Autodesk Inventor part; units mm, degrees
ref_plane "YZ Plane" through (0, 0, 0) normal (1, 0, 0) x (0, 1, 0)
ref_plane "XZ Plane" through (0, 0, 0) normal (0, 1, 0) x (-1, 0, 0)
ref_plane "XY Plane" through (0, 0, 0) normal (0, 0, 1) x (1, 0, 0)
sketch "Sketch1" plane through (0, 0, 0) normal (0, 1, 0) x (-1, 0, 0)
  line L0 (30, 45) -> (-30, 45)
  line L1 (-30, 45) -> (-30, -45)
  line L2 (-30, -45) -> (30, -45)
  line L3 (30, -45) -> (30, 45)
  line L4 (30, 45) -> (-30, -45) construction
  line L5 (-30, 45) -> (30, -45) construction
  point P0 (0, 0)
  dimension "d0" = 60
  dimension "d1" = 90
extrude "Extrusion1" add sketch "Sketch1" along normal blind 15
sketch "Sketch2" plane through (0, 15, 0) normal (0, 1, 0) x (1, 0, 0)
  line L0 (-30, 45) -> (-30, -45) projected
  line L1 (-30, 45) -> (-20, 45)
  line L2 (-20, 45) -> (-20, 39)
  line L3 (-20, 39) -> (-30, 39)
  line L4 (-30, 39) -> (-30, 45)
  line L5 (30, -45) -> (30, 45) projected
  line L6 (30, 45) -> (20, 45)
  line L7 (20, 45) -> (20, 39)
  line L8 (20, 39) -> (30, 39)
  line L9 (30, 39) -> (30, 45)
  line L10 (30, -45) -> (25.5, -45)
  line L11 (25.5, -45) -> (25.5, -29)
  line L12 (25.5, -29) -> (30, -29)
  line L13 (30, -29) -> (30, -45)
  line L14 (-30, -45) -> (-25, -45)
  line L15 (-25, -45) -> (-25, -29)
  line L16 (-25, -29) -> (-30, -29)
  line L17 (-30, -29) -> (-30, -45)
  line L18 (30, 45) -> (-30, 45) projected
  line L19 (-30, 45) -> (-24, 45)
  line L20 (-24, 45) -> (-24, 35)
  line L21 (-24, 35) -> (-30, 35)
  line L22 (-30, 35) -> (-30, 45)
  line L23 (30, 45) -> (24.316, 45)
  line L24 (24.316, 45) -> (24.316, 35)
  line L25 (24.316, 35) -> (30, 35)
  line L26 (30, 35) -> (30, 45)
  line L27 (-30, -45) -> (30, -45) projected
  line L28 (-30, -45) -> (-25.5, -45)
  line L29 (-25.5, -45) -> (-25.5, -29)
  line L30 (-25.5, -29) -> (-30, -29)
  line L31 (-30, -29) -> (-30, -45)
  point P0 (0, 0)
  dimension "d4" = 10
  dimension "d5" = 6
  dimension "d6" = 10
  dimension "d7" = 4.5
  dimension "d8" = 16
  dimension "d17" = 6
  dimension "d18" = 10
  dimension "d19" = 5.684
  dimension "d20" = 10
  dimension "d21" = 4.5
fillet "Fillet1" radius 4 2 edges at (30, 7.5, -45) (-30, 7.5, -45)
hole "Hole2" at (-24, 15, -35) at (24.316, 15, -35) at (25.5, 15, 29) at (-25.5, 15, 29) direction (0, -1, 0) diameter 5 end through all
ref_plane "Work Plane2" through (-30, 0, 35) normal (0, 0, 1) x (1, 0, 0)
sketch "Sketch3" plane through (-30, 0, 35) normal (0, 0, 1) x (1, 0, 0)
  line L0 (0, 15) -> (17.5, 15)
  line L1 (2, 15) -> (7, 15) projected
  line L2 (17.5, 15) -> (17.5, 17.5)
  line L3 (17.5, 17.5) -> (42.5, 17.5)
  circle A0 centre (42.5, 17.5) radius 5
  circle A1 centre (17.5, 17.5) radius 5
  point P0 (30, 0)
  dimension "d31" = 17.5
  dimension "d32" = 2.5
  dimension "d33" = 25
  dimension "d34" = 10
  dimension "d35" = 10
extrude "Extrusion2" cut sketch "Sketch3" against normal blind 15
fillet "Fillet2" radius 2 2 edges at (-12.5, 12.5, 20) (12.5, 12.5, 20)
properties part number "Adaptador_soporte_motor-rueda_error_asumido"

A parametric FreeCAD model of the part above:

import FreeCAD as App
import Part
import Sketcher
Q = App.Units.Quantity


def edges_at(feature, points):
    """Names of the edges that pass closest to the given points."""
    edges = feature.Shape.Edges
    near = lambda p: min(range(len(edges)), key=lambda i: edges[i].distToShape(Part.Vertex(*p))[0])
    return sorted({f"Edge{near(p) + 1}" for p in points})


def add_polygon(sketch, points):
    """Adds a closed chain of lines whose ends are joined by coincident constraints."""
    first, n = sketch.GeometryCount, len(points)
    for a, b in zip(points, points[1:] + points[:1]):
        sketch.addGeometry(Part.LineSegment(App.Vector(*a, 0), App.Vector(*b, 0)), False)
    for i in range(n):
        sketch.addConstraint(Sketcher.Constraint("Coincident", first + i, 2, first + (i + 1) % n, 1))

doc = App.newDocument("Part")
body = doc.addObject("PartDesign::Body", "Body")

# Sketch on XZ plane
sketch1 = doc.addObject("Sketcher::SketchObject", "Sketch")
body.addObject(sketch1)
sketch1.AttachmentSupport = (doc.XZ_Plane, [""])
sketch1.MapMode = "FlatFace"
add_polygon(sketch1, [(-30, -45), (-30, 45), (30, 45), (30, -45)])  # lines 0-3
sketch1.addConstraint([
    Sketcher.Constraint("Vertical", 0),
    Sketcher.Constraint("Horizontal", 1),
    Sketcher.Constraint("Vertical", 2),
    Sketcher.Constraint("Horizontal", 3),
    Sketcher.Constraint("Symmetric", 0, 2, 2, 2, -1, 1),
    Sketcher.Constraint("DistanceX", 1, 1, 1, 2, Q("60 mm")),
    Sketcher.Constraint("DistanceY", 0, 1, 0, 2, Q("90 mm")),
])
pad1 = doc.addObject("PartDesign::Pad", "Pad")
body.addObject(pad1)
pad1.Profile = sketch1
pad1.Length = 15
pad1.Reversed = True
doc.recompute()

fillet = doc.addObject("PartDesign::Fillet", "Fillet")
body.addObject(fillet)
fillet.Base = (pad1, edges_at(pad1, [(30, 7.5, -45), (-30, 7.5, -45)]))
fillet.Radius = 4

# Sketch on XZ plane
sketch2 = doc.addObject("Sketcher::SketchObject", "Sketch001")
body.addObject(sketch2)
sketch2.AttachmentSupport = (doc.XZ_Plane, [""])
sketch2.MapMode = "FlatFace"
sketch2.AttachmentOffset = App.Placement(App.Vector(0, 0, -15), App.Rotation())
sketch2.addGeometry([
    Part.Circle(App.Vector(-24, -35, 0), App.Vector(0, 0, 1), 2.5),
    Part.Circle(App.Vector(24.3, -35, 0), App.Vector(0, 0, 1), 2.5),
    Part.Circle(App.Vector(25.5, 29, 0), App.Vector(0, 0, 1), 2.5),
    Part.Circle(App.Vector(-25.5, 29, 0), App.Vector(0, 0, 1), 2.5),
], False)
sketch2.addConstraint([
    Sketcher.Constraint("Equal", 0, 1),
    Sketcher.Constraint("Equal", 1, 2),
    Sketcher.Constraint("Equal", 2, 3),
    Sketcher.Constraint("Symmetric", 2, 3, 3, 3, -2),
    Sketcher.Constraint("Horizontal", 0, 3, 1, 3),
    Sketcher.Constraint("Diameter", 0, Q("5 mm")),
    Sketcher.Constraint("DistanceX", 0, 3, -1, 1, Q("24 mm")),
    Sketcher.Constraint("DistanceY", 0, 3, -1, 1, Q("35 mm")),
    Sketcher.Constraint("DistanceY", -1, 1, 2, 3, Q("29 mm")),
    Sketcher.Constraint("DistanceX", 3, 3, 2, 3, Q("51 mm")),
    Sketcher.Constraint("DistanceX", -1, 1, 1, 3, Q("24.316 mm")),
])
doc.recompute()
hole = doc.addObject("PartDesign::Hole", "Hole")
body.addObject(hole)
hole.Profile = sketch2
hole.ThreadType = "None"
hole.Diameter = 5
hole.DepthType = "ThroughAll"
hole.Reversed = True

# Sketch on XY plane
sketch3 = doc.addObject("Sketcher::SketchObject", "Sketch002")
body.addObject(sketch3)
sketch3.AttachmentSupport = (doc.XY_Plane, [""])
sketch3.MapMode = "FlatFace"
sketch3.AttachmentOffset = App.Placement(App.Vector(0, 0, 35), App.Rotation())
sketch3.addGeometry([
    Part.Circle(App.Vector(-12, 18, 0), App.Vector(0, 0, 1), 5),
    Part.Circle(App.Vector(12, 18, 0), App.Vector(0, 0, 1), 5),
], False)
sketch3.addConstraint([
    Sketcher.Constraint("Equal", 0, 1),
    Sketcher.Constraint("Symmetric", 0, 3, 1, 3, -2),
    Sketcher.Constraint("Diameter", 0, Q("10 mm")),
    Sketcher.Constraint("DistanceX", 0, 3, 1, 3, Q("25 mm")),
    Sketcher.Constraint("DistanceY", -1, 1, 0, 3, Q("17.5 mm")),
])
pocket1 = doc.addObject("PartDesign::Pocket", "Pocket")
body.addObject(pocket1)
pocket1.Profile = sketch3
pocket1.Length = 15
doc.recompute()

fillet2 = doc.addObject("PartDesign::Fillet", "Fillet001")
body.addObject(fillet2)
fillet2.Base = (pocket1, edges_at(pocket1, [(-12.5, 12.5, 20), (12.5, 12.5, 20)]))
fillet2.Radius = 2

doc.recompute()
